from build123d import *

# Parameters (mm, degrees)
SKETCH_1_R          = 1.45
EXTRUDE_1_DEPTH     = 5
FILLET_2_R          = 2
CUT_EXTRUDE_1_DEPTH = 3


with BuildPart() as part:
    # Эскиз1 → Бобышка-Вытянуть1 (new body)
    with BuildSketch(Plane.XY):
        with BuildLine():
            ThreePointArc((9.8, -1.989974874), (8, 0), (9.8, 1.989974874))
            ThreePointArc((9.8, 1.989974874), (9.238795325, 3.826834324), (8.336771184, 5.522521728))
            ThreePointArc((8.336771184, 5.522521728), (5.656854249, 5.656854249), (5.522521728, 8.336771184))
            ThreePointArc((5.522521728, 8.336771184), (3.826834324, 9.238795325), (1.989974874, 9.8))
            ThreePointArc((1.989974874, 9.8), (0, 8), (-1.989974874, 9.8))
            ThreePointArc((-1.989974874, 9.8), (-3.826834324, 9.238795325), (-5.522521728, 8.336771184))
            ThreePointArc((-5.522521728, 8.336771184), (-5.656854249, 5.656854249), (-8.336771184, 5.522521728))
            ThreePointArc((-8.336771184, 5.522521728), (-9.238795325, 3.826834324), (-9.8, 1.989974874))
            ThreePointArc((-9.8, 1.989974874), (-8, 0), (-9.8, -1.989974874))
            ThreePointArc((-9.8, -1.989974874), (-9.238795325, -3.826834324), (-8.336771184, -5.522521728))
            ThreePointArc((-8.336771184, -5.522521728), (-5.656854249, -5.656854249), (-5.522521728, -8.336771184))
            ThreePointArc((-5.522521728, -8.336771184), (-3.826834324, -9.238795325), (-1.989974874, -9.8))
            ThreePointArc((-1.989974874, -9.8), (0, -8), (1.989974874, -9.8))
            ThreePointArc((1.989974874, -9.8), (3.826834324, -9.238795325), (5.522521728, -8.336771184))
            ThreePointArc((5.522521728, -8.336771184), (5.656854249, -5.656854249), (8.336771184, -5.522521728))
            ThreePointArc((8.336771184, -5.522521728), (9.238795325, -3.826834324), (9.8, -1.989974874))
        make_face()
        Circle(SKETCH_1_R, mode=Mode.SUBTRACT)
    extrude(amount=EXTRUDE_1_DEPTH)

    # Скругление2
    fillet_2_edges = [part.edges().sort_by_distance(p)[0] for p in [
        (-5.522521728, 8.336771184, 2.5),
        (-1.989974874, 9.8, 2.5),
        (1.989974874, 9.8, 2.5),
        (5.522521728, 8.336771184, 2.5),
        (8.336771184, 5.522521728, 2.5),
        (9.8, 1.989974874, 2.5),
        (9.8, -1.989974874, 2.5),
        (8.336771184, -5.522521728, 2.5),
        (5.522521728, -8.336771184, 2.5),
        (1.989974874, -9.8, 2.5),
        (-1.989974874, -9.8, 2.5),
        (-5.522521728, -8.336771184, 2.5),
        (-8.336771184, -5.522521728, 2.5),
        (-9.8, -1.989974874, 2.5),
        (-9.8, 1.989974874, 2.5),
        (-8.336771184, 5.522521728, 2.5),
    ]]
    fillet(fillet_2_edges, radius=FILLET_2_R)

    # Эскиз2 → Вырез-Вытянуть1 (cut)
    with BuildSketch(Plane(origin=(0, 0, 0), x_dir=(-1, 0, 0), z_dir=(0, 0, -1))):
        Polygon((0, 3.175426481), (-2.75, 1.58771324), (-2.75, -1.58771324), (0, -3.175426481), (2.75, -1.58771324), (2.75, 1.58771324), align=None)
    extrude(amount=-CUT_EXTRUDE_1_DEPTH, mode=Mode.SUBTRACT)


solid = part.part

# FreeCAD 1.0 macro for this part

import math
import FreeCAD as App
import Part
import Sketcher
Q = App.Units.Quantity


def edges_at(feature, points):
    """Names of the edges that pass closest to the given points."""
    edges = feature.Shape.Edges
    near = lambda p: min(range(len(edges)), key=lambda i: edges[i].distToShape(Part.Vertex(*p))[0])
    return sorted({f"Edge{near(p) + 1}" for p in points})


def add_polygon(sketch, points):
    """Adds a closed chain of lines whose ends are joined by coincident constraints."""
    first, n = sketch.GeometryCount, len(points)
    for a, b in zip(points, points[1:] + points[:1]):
        sketch.addGeometry(Part.LineSegment(App.Vector(*a, 0), App.Vector(*b, 0)), False)
    for i in range(n):
        sketch.addConstraint(Sketcher.Constraint("Coincident", first + i, 2, first + (i + 1) % n, 1))

doc = App.newDocument("Part")
body = doc.addObject("PartDesign::Body", "Body")

# Sketch on XY plane
sketch1 = body.newObject("Sketcher::SketchObject", "Sketch")
sketch1.AttachmentSupport = (doc.getObject("XY_Plane"), [""])
sketch1.MapMode = "FlatFace"
sketch1.addGeometry(Part.ArcOfCircle(Part.Circle(App.Vector(10, 0, 0), App.Vector(0, 0, 1), 2), math.radians(96), math.radians(264)), False)
sketch1.addGeometry(Part.ArcOfCircle(Part.Circle(App.Vector(0, 0, 0), App.Vector(0, 0, 1), 10), math.radians(11), math.radians(34)), False)
sketch1.addGeometry(Part.ArcOfCircle(Part.Circle(App.Vector(7.1, 7.1, 0), App.Vector(0, 0, 1), 2), math.radians(141), math.radians(309)), False)
sketch1.addGeometry(Part.ArcOfCircle(Part.Circle(App.Vector(0, 0, 0), App.Vector(0, 0, 1), 10), math.radians(56), math.radians(79)), False)
sketch1.addGeometry(Part.ArcOfCircle(Part.Circle(App.Vector(0, 10, 0), App.Vector(0, 0, 1), 2), math.radians(-174), math.radians(-6)), False)
sketch1.addGeometry(Part.ArcOfCircle(Part.Circle(App.Vector(0, 0, 0), App.Vector(0, 0, 1), 10), math.radians(101), math.radians(124)), False)
sketch1.addGeometry(Part.ArcOfCircle(Part.Circle(App.Vector(-7.1, 7.1, 0), App.Vector(0, 0, 1), 2), math.radians(-129), math.radians(39)), False)
sketch1.addGeometry(Part.ArcOfCircle(Part.Circle(App.Vector(0, 0, 0), App.Vector(0, 0, 1), 10), math.radians(146), math.radians(169)), False)
sketch1.addGeometry(Part.ArcOfCircle(Part.Circle(App.Vector(-10, 0, 0), App.Vector(0, 0, 1), 2), math.radians(-84), math.radians(84)), False)
sketch1.addGeometry(Part.ArcOfCircle(Part.Circle(App.Vector(0, 0, 0), App.Vector(0, 0, 1), 10), math.radians(-169), math.radians(-146)), False)
sketch1.addGeometry(Part.ArcOfCircle(Part.Circle(App.Vector(-7.1, -7.1, 0), App.Vector(0, 0, 1), 2), math.radians(-39), math.radians(129)), False)
sketch1.addGeometry(Part.ArcOfCircle(Part.Circle(App.Vector(0, 0, 0), App.Vector(0, 0, 1), 10), math.radians(-124), math.radians(-101)), False)
sketch1.addGeometry(Part.ArcOfCircle(Part.Circle(App.Vector(0, -10, 0), App.Vector(0, 0, 1), 2), math.radians(6), math.radians(174)), False)
sketch1.addGeometry(Part.ArcOfCircle(Part.Circle(App.Vector(0, 0, 0), App.Vector(0, 0, 1), 10), math.radians(-79), math.radians(-56)), False)
sketch1.addGeometry(Part.ArcOfCircle(Part.Circle(App.Vector(7.1, -7.1, 0), App.Vector(0, 0, 1), 2), math.radians(51), math.radians(219)), False)
sketch1.addGeometry(Part.ArcOfCircle(Part.Circle(App.Vector(0, 0, 0), App.Vector(0, 0, 1), 10), math.radians(-34), math.radians(-11)), False)
sketch1.addGeometry(Part.Circle(App.Vector(0, 0, 0), App.Vector(0, 0, 1), 1.4), False)
sketch1.addConstraint(Sketcher.Constraint("Coincident", 0, 1, 1, 1))
sketch1.addConstraint(Sketcher.Constraint("Coincident", 1, 2, 2, 2))
sketch1.addConstraint(Sketcher.Constraint("Coincident", 2, 1, 3, 1))
sketch1.addConstraint(Sketcher.Constraint("Coincident", 3, 2, 4, 2))
sketch1.addConstraint(Sketcher.Constraint("Coincident", 4, 1, 5, 1))
sketch1.addConstraint(Sketcher.Constraint("Coincident", 5, 2, 6, 2))
sketch1.addConstraint(Sketcher.Constraint("Coincident", 6, 1, 7, 1))
sketch1.addConstraint(Sketcher.Constraint("Coincident", 7, 2, 8, 2))
sketch1.addConstraint(Sketcher.Constraint("Coincident", 8, 1, 9, 1))
sketch1.addConstraint(Sketcher.Constraint("Coincident", 9, 2, 10, 2))
sketch1.addConstraint(Sketcher.Constraint("Coincident", 10, 1, 11, 1))
sketch1.addConstraint(Sketcher.Constraint("Coincident", 11, 2, 12, 2))
sketch1.addConstraint(Sketcher.Constraint("Coincident", 12, 1, 13, 1))
sketch1.addConstraint(Sketcher.Constraint("Coincident", 13, 2, 14, 2))
sketch1.addConstraint(Sketcher.Constraint("Coincident", 14, 1, 15, 1))
sketch1.addConstraint(Sketcher.Constraint("Coincident", 15, 2, 0, 2))
sketch1.addConstraint(Sketcher.Constraint("Coincident", 1, 3, -1, 1))
sketch1.addConstraint(Sketcher.Constraint("Coincident", 3, 3, -1, 1))
sketch1.addConstraint(Sketcher.Constraint("Coincident", 5, 3, -1, 1))
sketch1.addConstraint(Sketcher.Constraint("Coincident", 7, 3, -1, 1))
sketch1.addConstraint(Sketcher.Constraint("Coincident", 9, 3, -1, 1))
sketch1.addConstraint(Sketcher.Constraint("Coincident", 11, 3, -1, 1))
sketch1.addConstraint(Sketcher.Constraint("Coincident", 13, 3, -1, 1))
sketch1.addConstraint(Sketcher.Constraint("Coincident", 15, 3, -1, 1))
sketch1.addConstraint(Sketcher.Constraint("Coincident", 16, 3, -1, 1))
sketch1.addConstraint(Sketcher.Constraint("Equal", 0, 2))
sketch1.addConstraint(Sketcher.Constraint("Equal", 1, 3))
sketch1.addConstraint(Sketcher.Constraint("Equal", 2, 4))
sketch1.addConstraint(Sketcher.Constraint("Equal", 3, 5))
sketch1.addConstraint(Sketcher.Constraint("Equal", 4, 6))
sketch1.addConstraint(Sketcher.Constraint("Equal", 5, 7))
sketch1.addConstraint(Sketcher.Constraint("Equal", 6, 8))
sketch1.addConstraint(Sketcher.Constraint("Equal", 7, 9))
sketch1.addConstraint(Sketcher.Constraint("Equal", 8, 10))
sketch1.addConstraint(Sketcher.Constraint("Equal", 9, 11))
sketch1.addConstraint(Sketcher.Constraint("Equal", 10, 12))
sketch1.addConstraint(Sketcher.Constraint("Equal", 11, 13))
sketch1.addConstraint(Sketcher.Constraint("Equal", 12, 14))
sketch1.addConstraint(Sketcher.Constraint("Equal", 13, 15))
sketch1.addConstraint(Sketcher.Constraint("Symmetric", 0, 3, 8, 3, -1, 1))
sketch1.addConstraint(Sketcher.Constraint("Symmetric", 2, 3, 10, 3, -1, 1))
sketch1.addConstraint(Sketcher.Constraint("Symmetric", 4, 3, 12, 3, -1, 1))
sketch1.addConstraint(Sketcher.Constraint("Symmetric", 6, 3, 14, 3, -1, 1))
sketch1.addConstraint(Sketcher.Constraint("Symmetric", 2, 3, 6, 3, -2))
sketch1.addConstraint(Sketcher.Constraint("PointOnObject", 0, 3, -1))
sketch1.addConstraint(Sketcher.Constraint("PointOnObject", 4, 3, -2))
sketch1.addConstraint(Sketcher.Constraint("Radius", 0, 2.0))
sketch1.addConstraint(Sketcher.Constraint("Radius", 1, 10.0))
sketch1.addConstraint(Sketcher.Constraint("Diameter", 16, 2.9))
sketch1.addConstraint(Sketcher.Constraint("DistanceX", -1, 1, 0, 3, 10.0))
sketch1.addConstraint(Sketcher.Constraint("DistanceY", -1, 1, 4, 3, 10.0))
sketch1.addConstraint(Sketcher.Constraint("DistanceX", -1, 1, 1, 2, 8.336771))
sketch1.addConstraint(Sketcher.Constraint("DistanceX", -1, 1, 2, 1, 5.522522))
pad1 = body.newObject("PartDesign::Pad", "Pad")
pad1.Profile = sketch1
pad1.Length = 5
doc.recompute()

fillet = body.newObject("PartDesign::Fillet", "Fillet")
fillet.Base = (pad1, edges_at(pad1, [
    (-5.523, 8.337, 2.5),
    (-1.99, 9.8, 2.5),
    (1.99, 9.8, 2.5),
    (5.523, 8.337, 2.5),
    (8.337, 5.523, 2.5),
    (9.8, 1.99, 2.5),
    (9.8, -1.99, 2.5),
    (8.337, -5.523, 2.5),
    (5.523, -8.337, 2.5),
    (1.99, -9.8, 2.5),
    (-1.99, -9.8, 2.5),
    (-5.523, -8.337, 2.5),
    (-8.337, -5.523, 2.5),
    (-9.8, -1.99, 2.5),
    (-9.8, 1.99, 2.5),
    (-8.337, 5.523, 2.5),
]))
fillet.Radius = 2

# Sketch on XY plane
sketch2 = body.newObject("Sketcher::SketchObject", "Sketch001")
sketch2.AttachmentSupport = (doc.getObject("XY_Plane"), [""])
sketch2.MapMode = "FlatFace"
add_polygon(sketch2, [(0, 3.2), (2.8, 1.6), (2.8, -1.6), (0, -3.2), (-2.8, -1.6), (-2.8, 1.6)])  # lines 0-5
sketch2.addConstraint(Sketcher.Constraint("Vertical", 1))
sketch2.addConstraint(Sketcher.Constraint("Vertical", 4))
sketch2.addConstraint(Sketcher.Constraint("Symmetric", 0, 2, 3, 2, -1, 1))
sketch2.addConstraint(Sketcher.Constraint("Symmetric", 2, 2, 5, 2, -1, 1))
sketch2.addConstraint(Sketcher.Constraint("PointOnObject", 2, 2, -2))
sketch2.addConstraint(Sketcher.Constraint("Parallel", 2, 5))
sketch2.addConstraint(Sketcher.Constraint("Horizontal", 1, 2, 3, 2))
sketch2.addConstraint(Sketcher.Constraint("Angle", 0, Q("-30 deg")))
sketch2.addConstraint(Sketcher.Constraint("DistanceX", 3, 2, 1, 2, 5.5))
sketch2.addConstraint(Sketcher.Constraint("DistanceY", 1, 2, 1, 1, 3.175426))
pocket1 = body.newObject("PartDesign::Pocket", "Pocket")
pocket1.Profile = sketch2
pocket1.Length = 3
pocket1.Reversed = True

doc.recompute()
